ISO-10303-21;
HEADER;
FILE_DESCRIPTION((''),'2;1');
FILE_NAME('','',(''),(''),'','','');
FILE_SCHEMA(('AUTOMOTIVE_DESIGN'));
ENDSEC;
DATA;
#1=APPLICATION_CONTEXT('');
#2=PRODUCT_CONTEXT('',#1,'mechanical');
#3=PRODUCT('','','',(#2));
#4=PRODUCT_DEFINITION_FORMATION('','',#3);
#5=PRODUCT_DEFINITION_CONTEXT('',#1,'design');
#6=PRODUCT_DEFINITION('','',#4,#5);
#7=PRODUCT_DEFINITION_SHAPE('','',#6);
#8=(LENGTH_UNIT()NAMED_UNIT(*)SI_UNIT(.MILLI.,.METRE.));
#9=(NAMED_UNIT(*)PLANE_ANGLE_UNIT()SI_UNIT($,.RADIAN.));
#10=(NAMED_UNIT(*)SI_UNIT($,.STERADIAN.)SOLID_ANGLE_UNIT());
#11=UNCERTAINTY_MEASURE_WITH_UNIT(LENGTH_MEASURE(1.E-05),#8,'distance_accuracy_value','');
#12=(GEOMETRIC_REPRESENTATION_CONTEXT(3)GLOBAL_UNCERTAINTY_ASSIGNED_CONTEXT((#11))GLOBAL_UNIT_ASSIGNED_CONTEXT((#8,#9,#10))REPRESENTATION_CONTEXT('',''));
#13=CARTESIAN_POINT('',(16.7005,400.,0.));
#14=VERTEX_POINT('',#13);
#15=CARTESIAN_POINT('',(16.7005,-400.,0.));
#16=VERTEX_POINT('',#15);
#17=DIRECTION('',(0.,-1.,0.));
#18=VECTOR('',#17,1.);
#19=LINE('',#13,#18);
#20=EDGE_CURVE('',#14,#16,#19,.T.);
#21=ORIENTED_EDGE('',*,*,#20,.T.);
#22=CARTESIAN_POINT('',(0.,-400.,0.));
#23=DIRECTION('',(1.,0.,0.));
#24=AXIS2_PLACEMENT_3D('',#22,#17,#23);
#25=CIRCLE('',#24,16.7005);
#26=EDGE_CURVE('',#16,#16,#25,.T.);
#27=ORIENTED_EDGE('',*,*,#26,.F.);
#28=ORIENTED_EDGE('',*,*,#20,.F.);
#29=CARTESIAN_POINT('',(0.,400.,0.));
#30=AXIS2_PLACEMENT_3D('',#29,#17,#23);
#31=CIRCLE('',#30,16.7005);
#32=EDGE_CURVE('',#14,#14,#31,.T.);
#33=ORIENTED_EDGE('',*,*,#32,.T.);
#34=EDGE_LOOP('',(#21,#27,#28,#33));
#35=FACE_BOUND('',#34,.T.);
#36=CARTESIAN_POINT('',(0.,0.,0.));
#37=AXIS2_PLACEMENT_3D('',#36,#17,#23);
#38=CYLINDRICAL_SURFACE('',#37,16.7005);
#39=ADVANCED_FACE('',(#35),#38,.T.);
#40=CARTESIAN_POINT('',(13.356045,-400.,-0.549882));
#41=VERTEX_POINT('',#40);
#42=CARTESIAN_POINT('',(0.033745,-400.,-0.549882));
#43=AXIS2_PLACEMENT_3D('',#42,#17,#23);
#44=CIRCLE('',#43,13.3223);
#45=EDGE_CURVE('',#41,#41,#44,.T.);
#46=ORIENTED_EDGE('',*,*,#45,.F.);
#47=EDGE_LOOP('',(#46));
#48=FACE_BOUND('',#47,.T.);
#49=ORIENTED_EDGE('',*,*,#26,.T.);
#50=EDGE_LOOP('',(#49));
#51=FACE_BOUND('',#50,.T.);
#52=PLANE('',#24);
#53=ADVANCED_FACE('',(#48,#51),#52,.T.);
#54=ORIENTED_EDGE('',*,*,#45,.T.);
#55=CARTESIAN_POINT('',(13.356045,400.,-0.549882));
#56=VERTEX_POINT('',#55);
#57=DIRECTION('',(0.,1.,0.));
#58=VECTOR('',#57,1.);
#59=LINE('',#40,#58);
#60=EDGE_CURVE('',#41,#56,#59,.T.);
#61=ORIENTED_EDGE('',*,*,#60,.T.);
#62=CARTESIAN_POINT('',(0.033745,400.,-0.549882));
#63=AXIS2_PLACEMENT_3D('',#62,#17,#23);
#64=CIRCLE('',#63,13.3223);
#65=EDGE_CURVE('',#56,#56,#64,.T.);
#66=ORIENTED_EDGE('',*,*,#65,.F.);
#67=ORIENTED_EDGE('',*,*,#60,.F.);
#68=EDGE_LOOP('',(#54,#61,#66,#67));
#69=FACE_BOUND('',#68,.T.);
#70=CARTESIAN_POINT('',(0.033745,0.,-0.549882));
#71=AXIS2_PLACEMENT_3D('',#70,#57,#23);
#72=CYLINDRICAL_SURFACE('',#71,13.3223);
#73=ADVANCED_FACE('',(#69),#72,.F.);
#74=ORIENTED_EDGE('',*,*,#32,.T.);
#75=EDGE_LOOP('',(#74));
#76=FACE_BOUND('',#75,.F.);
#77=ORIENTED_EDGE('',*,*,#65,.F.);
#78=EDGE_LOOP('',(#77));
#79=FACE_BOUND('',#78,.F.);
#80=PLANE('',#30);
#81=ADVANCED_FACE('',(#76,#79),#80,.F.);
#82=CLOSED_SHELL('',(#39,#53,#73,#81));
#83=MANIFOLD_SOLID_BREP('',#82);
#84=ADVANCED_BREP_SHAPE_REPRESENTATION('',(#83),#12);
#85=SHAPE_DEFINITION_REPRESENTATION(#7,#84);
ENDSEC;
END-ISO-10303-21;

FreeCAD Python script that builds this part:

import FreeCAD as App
import Part
import Sketcher

V = App.Vector
Q = App.Units.Quantity

doc = App.newDocument("Part")
body = doc.addObject("PartDesign::Body", "Body")

sketch1 = body.newObject("Sketcher::SketchObject", "Sketch")
sketch1.AttachmentSupport = (doc.getObject("XZ_Plane"), [""])
sketch1.MapMode = "FlatFace"
sketch1.addGeometry([
    Part.Circle(V(0, 0, 0), V(0, 0, 1), 17),
    Part.Circle(V(0, -1, 0), V(0, 0, 1), 13),
], False)
sketch1.addConstraint([
    Sketcher.Constraint("Coincident", 0, 3, -1, 1),
    Sketcher.Constraint("Diameter", 0, Q("1.315 in")),
    Sketcher.Constraint("Diameter", 1, Q("1.049 in")),
    Sketcher.Constraint("DistanceY", 1, 3, -1, 1, Q("0.549882 mm")),
    Sketcher.Constraint("DistanceX", -1, 1, 1, 3, Q("0.033745 mm")),
])
pad1 = body.newObject("PartDesign::Pad", "Pad")
pad1.Profile = sketch1
pad1.Length = 800
pad1.Midplane = True

doc.recompute()
